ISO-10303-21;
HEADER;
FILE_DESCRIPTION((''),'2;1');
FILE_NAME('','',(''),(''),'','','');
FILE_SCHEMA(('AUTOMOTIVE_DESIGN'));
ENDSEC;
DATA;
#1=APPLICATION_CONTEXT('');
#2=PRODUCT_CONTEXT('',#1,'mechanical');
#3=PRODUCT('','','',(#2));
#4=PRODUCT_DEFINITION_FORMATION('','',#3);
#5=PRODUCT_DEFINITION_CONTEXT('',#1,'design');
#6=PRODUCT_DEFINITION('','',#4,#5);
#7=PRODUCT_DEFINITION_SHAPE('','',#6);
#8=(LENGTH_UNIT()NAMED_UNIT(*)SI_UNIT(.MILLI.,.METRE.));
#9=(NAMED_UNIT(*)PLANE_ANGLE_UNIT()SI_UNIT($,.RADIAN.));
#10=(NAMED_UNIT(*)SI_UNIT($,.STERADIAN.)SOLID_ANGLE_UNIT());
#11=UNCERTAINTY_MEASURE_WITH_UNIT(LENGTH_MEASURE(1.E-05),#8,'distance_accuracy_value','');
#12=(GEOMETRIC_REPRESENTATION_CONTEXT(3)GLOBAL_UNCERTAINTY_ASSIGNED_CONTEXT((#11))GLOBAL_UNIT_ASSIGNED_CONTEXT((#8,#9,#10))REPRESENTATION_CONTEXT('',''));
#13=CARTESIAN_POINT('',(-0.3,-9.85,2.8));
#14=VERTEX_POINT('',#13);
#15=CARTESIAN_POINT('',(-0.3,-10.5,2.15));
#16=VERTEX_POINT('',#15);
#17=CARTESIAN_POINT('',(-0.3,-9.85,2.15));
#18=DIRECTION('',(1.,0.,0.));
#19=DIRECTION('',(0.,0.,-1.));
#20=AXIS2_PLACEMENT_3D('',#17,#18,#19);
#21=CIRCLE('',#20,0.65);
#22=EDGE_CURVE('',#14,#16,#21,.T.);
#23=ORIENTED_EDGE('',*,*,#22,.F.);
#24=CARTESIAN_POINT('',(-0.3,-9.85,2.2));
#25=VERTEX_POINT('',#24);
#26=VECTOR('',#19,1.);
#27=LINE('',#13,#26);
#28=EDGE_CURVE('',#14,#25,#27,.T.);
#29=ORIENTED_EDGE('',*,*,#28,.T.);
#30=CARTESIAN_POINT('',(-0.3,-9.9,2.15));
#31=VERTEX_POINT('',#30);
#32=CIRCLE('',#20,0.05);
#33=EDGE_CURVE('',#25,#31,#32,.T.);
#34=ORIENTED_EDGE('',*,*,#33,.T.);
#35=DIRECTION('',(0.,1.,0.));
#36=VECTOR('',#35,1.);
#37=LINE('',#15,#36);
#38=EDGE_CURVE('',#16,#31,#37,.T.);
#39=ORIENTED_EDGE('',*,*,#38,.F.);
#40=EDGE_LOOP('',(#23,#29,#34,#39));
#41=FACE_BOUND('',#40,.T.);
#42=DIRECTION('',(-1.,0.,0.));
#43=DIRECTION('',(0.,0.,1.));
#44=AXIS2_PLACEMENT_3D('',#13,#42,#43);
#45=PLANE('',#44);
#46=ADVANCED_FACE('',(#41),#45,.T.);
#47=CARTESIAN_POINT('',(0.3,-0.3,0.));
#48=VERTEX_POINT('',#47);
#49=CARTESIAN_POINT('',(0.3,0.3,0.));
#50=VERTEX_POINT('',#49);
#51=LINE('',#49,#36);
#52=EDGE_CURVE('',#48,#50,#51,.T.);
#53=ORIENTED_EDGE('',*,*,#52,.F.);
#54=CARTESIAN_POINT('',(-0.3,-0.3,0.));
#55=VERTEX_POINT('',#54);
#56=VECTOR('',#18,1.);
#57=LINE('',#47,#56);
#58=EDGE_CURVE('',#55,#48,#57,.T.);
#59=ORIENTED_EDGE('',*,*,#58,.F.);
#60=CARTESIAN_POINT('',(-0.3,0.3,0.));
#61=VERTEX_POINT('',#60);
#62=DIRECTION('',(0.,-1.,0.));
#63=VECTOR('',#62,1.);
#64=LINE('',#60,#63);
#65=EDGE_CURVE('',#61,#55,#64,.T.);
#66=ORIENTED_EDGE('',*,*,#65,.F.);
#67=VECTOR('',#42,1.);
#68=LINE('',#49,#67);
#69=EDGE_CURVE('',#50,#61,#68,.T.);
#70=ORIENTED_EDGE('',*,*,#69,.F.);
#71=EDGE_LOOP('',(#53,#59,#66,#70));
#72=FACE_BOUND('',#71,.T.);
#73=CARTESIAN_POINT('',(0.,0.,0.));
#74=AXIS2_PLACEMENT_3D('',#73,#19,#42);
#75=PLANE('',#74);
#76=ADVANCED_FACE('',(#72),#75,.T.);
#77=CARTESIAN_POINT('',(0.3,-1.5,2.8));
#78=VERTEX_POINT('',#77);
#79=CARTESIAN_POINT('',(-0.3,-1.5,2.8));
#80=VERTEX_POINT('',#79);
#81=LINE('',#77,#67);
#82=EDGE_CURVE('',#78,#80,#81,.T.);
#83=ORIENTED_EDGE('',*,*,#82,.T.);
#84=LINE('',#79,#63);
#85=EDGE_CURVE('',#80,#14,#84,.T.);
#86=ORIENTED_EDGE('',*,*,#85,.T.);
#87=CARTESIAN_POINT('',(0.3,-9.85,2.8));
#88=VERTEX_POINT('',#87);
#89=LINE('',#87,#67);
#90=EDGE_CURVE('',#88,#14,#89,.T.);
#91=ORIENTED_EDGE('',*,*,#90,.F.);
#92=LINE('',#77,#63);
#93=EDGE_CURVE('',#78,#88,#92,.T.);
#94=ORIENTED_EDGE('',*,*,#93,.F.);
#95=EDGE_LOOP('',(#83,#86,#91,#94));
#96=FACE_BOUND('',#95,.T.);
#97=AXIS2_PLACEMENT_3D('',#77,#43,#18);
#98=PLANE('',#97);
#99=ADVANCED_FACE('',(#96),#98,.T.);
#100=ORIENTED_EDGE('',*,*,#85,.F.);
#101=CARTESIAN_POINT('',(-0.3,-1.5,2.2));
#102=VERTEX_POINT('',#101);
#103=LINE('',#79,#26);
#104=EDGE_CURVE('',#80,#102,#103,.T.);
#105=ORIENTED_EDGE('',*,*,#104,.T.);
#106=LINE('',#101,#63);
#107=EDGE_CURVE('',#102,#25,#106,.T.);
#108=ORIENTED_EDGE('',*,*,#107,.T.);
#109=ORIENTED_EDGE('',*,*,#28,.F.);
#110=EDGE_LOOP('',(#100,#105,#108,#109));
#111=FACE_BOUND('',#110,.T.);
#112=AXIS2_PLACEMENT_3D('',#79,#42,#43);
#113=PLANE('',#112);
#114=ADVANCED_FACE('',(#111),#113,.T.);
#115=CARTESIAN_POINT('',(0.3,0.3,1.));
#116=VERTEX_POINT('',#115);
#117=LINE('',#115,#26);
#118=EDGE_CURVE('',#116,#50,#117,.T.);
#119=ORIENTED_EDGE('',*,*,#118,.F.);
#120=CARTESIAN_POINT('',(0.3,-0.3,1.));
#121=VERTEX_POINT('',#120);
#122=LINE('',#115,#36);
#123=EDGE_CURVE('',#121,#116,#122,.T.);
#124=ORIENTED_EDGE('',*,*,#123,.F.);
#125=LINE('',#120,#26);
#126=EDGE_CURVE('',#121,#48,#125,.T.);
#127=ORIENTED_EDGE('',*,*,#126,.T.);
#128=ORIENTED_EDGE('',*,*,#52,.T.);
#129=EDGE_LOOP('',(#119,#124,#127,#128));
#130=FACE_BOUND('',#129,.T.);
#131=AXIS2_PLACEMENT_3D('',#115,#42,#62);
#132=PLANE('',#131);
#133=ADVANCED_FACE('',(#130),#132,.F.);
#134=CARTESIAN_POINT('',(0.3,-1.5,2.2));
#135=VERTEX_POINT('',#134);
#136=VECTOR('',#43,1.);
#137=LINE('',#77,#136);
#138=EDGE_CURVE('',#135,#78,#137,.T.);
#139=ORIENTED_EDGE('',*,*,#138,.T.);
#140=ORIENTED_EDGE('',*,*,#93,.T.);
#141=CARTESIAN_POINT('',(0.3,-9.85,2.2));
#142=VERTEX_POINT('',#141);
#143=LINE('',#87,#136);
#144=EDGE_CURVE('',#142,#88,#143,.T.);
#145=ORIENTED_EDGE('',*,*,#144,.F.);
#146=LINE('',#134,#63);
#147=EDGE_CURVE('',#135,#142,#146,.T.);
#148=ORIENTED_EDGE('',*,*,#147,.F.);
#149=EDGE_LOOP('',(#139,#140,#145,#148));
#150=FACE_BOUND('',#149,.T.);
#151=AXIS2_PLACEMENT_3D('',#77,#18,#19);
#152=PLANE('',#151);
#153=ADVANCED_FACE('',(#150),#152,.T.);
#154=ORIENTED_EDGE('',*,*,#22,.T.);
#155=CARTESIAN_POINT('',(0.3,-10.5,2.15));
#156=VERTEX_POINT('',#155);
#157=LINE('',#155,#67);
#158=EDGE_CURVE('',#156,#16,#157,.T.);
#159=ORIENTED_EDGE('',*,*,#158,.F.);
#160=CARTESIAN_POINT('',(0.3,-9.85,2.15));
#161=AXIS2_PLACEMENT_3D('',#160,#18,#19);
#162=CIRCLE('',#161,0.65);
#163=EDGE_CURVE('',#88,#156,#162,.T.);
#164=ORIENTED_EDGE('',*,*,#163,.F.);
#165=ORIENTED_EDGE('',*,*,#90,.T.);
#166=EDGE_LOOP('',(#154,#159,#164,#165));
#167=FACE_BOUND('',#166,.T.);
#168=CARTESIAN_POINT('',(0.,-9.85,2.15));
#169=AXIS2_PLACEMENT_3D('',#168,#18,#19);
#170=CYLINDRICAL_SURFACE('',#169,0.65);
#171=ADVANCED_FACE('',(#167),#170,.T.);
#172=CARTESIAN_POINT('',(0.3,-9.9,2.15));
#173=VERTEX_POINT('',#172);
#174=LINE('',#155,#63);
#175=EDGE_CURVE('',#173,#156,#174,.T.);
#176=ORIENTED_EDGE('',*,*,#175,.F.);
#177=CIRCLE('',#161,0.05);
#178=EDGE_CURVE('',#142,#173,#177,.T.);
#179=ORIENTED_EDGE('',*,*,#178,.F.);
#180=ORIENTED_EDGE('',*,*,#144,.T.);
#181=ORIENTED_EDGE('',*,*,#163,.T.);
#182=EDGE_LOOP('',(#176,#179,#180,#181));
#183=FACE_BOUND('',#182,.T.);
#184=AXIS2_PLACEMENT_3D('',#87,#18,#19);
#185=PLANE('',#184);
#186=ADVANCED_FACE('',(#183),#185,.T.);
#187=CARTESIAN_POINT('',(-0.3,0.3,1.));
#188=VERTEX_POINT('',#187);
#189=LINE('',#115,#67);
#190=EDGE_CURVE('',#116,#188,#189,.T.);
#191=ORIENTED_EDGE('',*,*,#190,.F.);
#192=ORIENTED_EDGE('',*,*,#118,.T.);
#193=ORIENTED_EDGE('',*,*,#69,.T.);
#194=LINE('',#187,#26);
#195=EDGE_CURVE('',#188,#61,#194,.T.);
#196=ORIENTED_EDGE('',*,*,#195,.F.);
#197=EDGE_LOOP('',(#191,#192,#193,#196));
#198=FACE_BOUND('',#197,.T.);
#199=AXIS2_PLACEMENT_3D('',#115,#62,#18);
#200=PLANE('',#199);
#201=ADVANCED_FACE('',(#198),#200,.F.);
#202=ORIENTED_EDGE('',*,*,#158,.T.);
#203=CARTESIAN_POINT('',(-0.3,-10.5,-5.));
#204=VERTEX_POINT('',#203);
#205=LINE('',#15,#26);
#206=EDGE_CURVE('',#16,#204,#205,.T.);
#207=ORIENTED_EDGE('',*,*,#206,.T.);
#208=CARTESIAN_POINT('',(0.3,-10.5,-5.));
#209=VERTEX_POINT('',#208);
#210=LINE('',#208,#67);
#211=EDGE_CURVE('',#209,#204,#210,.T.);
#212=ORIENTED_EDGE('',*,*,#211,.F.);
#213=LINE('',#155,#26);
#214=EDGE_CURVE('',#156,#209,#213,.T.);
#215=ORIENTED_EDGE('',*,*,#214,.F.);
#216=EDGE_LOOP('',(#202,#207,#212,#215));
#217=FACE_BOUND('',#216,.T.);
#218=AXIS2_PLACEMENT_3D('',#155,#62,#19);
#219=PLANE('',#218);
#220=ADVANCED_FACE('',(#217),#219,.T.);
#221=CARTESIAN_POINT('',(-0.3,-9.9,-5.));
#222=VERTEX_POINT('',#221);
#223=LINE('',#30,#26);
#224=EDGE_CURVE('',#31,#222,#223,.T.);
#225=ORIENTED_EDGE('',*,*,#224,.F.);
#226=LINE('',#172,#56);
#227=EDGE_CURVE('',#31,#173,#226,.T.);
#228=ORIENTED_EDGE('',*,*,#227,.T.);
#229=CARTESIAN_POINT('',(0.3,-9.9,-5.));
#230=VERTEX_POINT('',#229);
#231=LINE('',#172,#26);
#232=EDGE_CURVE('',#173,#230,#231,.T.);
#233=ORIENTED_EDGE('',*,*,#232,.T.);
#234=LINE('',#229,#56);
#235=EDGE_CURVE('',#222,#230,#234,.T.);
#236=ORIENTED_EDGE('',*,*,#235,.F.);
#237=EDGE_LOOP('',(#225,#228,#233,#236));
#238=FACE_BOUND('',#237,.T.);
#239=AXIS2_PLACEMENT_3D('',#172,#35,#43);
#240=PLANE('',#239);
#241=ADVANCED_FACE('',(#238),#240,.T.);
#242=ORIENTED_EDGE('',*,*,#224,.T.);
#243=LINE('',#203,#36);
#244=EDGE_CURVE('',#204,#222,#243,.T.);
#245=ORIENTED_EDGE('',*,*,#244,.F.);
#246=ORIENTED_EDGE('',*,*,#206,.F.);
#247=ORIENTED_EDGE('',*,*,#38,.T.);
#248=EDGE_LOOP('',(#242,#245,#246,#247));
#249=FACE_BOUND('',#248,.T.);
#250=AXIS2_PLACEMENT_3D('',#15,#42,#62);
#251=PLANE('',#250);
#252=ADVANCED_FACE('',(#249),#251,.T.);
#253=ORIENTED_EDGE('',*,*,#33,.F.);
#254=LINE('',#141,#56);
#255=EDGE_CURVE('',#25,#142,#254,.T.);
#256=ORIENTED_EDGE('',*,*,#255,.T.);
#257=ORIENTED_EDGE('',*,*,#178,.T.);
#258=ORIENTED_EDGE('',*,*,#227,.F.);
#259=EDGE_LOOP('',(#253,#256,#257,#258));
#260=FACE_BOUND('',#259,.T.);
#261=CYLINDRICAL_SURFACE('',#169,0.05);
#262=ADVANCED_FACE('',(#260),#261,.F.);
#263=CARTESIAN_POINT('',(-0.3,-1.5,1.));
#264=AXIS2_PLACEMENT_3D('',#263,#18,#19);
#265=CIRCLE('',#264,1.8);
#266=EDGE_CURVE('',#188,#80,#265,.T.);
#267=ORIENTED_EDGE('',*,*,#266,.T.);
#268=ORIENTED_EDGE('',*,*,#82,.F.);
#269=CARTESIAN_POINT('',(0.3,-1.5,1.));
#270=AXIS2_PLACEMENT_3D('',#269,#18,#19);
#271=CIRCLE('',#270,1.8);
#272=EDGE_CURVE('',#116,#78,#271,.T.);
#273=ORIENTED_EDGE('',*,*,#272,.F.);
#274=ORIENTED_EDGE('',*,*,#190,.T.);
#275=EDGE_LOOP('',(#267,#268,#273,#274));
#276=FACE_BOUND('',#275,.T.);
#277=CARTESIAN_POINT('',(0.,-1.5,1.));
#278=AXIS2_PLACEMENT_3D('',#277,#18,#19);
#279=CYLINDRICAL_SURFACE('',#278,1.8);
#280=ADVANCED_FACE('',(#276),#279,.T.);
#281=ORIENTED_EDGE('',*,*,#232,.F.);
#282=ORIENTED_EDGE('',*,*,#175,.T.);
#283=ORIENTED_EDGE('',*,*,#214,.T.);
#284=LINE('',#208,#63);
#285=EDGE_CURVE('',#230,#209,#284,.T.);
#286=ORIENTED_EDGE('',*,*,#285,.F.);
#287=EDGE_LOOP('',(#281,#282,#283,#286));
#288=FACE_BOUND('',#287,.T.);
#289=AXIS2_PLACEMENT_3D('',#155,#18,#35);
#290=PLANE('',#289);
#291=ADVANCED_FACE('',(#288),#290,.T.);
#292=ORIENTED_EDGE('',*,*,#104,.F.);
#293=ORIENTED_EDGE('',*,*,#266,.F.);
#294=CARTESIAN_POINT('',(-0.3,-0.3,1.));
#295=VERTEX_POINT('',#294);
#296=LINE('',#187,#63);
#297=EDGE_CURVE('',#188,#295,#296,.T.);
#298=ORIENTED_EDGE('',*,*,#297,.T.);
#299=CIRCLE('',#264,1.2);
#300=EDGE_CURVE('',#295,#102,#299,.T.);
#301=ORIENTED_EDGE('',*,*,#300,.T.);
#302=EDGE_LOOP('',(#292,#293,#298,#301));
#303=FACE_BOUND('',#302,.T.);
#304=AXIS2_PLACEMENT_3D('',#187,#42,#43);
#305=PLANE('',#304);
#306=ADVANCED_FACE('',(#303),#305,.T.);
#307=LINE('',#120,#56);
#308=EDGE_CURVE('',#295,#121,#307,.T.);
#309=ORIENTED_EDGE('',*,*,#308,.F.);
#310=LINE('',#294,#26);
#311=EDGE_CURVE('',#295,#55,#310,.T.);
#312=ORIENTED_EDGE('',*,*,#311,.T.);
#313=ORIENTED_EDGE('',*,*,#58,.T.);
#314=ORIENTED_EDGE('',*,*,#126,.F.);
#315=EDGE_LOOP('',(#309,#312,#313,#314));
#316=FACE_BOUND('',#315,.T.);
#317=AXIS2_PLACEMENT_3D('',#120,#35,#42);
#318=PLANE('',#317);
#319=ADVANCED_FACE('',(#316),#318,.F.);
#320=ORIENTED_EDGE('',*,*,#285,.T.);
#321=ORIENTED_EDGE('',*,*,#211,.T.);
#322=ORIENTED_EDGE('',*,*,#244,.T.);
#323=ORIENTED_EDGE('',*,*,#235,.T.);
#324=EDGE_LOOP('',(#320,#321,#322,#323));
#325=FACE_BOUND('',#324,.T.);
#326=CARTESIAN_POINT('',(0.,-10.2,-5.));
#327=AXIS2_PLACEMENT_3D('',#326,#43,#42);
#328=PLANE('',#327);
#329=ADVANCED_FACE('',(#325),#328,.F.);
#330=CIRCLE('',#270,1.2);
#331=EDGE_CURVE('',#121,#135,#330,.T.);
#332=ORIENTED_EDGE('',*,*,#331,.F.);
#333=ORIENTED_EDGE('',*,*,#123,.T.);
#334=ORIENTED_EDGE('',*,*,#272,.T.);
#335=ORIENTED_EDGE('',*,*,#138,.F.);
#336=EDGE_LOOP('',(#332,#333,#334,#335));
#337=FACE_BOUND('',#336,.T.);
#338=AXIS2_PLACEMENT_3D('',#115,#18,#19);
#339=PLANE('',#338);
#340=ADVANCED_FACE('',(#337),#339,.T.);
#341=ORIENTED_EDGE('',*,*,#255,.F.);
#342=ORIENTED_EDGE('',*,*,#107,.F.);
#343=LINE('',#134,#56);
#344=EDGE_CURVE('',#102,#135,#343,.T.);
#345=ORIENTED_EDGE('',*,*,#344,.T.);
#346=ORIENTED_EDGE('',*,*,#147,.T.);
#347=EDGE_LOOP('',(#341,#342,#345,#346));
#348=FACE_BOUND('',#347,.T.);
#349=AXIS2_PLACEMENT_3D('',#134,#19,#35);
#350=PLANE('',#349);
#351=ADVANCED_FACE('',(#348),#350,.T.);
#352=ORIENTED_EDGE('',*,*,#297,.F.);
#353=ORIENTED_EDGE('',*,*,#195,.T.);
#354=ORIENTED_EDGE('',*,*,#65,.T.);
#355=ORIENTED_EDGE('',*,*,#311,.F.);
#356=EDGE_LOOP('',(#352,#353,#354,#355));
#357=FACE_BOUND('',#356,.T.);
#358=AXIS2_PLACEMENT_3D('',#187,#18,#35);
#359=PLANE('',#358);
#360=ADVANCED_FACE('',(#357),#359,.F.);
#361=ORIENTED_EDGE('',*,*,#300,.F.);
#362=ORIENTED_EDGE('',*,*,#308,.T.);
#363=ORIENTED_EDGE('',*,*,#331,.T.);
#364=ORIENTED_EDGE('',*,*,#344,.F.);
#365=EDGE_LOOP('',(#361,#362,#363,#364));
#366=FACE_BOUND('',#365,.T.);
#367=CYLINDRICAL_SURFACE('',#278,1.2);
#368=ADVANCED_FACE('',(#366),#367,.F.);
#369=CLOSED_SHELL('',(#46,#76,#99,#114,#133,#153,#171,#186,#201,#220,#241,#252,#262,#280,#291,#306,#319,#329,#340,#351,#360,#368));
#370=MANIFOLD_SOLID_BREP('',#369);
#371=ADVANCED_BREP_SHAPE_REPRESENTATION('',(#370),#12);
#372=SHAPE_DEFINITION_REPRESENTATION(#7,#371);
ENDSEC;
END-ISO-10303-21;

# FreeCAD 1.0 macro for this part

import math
import FreeCAD as App
import Part
import Sketcher
Q = App.Units.Quantity

doc = App.newDocument("Part")
body = doc.addObject("PartDesign::Body", "Body")

# Sketch on XY plane
sketch1 = body.newObject("Sketcher::SketchObject", "Sketch")
sketch1.AttachmentSupport = (doc.getObject("XY_Plane"), [""])
sketch1.MapMode = "FlatFace"
sketch1.addGeometry([
    Part.LineSegment(App.Vector(-0.3, 0.3, 0), App.Vector(-0.3, -0.3, 0)),
    Part.LineSegment(App.Vector(-0.3, -0.3, 0), App.Vector(0.3, -0.3, 0)),
    Part.LineSegment(App.Vector(0.3, -0.3, 0), App.Vector(0.3, 0.3, 0)),
    Part.LineSegment(App.Vector(0.3, 0.3, 0), App.Vector(-0.3, 0.3, 0)),
], False)
sketch1.addConstraint([
    Sketcher.Constraint("Coincident", 0, 2, 1, 1),
    Sketcher.Constraint("Coincident", 1, 2, 2, 1),
    Sketcher.Constraint("Coincident", 2, 2, 3, 1),
    Sketcher.Constraint("Coincident", 3, 2, 0, 1),
    Sketcher.Constraint("Vertical", 0),
    Sketcher.Constraint("Horizontal", 1),
    Sketcher.Constraint("Vertical", 2),
    Sketcher.Constraint("Horizontal", 3),
    Sketcher.Constraint("Symmetric", 0, 2, 2, 2, -1, 1),
    Sketcher.Constraint("Equal", 3, 0),
    Sketcher.Constraint("DistanceX", 1, 1, 1, 2, Q("0.6 mm")),
])

# Sketch on YZ plane
sketch2 = body.newObject("Sketcher::SketchObject", "Sketch001")
sketch2.AttachmentSupport = (doc.getObject("YZ_Plane"), [""])
sketch2.MapMode = "FlatFace"
sketch2.addGeometry([
    Part.LineSegment(App.Vector(-10.2, -5, 0), App.Vector(-10.2, 2.15, 0)),  # 0
    Part.ArcOfCircle(Part.Circle(App.Vector(-9.85, 2.15, 0), App.Vector(0, 0, 1), 0.35), math.radians(90), math.radians(180)),  # 1
    Part.LineSegment(App.Vector(-9.85, 2.5, 0), App.Vector(-1.5, 2.5, 0)),  # 2
    Part.ArcOfCircle(Part.Circle(App.Vector(-1.5, 1, 0), App.Vector(0, 0, 1), 1.5), math.radians(0), math.radians(90)),  # 3
    Part.LineSegment(App.Vector(0, 1, 0), App.Vector(0, 0, 0)),  # 4
], False)
sketch2.addConstraint([
    Sketcher.Constraint("Tangent", 0, 2, 1, 2),
    Sketcher.Constraint("Tangent", 1, 1, 2, 1),
    Sketcher.Constraint("Tangent", 2, 2, 3, 2),
    Sketcher.Constraint("Tangent", 3, 1, 4, 1),
    Sketcher.Constraint("Vertical", 0),
    Sketcher.Constraint("Horizontal", 2),
    Sketcher.Constraint("Vertical", 4),
    Sketcher.Constraint("Coincident", 4, 2, -1, 1),
    Sketcher.Constraint("Radius", 3, Q("1.5 mm")),
    Sketcher.Constraint("DistanceY", 4, 2, 4, 1, Q("1 mm")),
    Sketcher.Constraint("Radius", 1, Q("0.35 mm")),
    Sketcher.Constraint("DistanceY", 0, 1, -1, 1, Q("5 mm")),
    Sketcher.Constraint("DistanceX", 2, 1, 2, 2, Q("8.35 mm")),
])
doc.recompute()

additivepipe = body.newObject("PartDesign::AdditivePipe", "AdditivePipe")
additivepipe.Profile = sketch1
additivepipe.Spine = (sketch2, ["Edge1", "Edge2", "Edge3", "Edge4", "Edge5"])

doc.recompute()
